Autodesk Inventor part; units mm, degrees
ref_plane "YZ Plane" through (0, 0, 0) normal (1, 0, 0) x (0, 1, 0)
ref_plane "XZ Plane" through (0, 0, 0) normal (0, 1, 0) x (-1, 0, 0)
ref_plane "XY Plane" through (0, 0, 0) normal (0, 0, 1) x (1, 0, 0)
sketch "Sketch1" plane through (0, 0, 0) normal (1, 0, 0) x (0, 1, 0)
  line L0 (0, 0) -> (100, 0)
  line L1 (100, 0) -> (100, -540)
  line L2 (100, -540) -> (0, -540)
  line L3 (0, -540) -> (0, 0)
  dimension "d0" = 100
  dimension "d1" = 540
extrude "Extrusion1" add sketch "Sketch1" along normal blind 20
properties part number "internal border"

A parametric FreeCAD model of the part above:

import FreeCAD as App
import Part
import Sketcher


def add_polygon(sketch, points):
    """Adds a closed chain of lines whose ends are joined by coincident constraints."""
    first, n = sketch.GeometryCount, len(points)
    for a, b in zip(points, points[1:] + points[:1]):
        sketch.addGeometry(Part.LineSegment(App.Vector(*a, 0), App.Vector(*b, 0)), False)
    for i in range(n):
        sketch.addConstraint(Sketcher.Constraint("Coincident", first + i, 2, first + (i + 1) % n, 1))

doc = App.newDocument("Part")
body = doc.addObject("PartDesign::Body", "Body")

# Sketch on YZ plane
sketch1 = body.newObject("Sketcher::SketchObject", "Sketch")
sketch1.AttachmentSupport = (doc.getObject("YZ_Plane"), [""])
sketch1.MapMode = "FlatFace"
add_polygon(sketch1, [(100, 0), (0, 0), (0, -540), (100, -540)])  # lines 0-3
sketch1.addConstraint([
    Sketcher.Constraint("Horizontal", 0),
    Sketcher.Constraint("Vertical", 1),
    Sketcher.Constraint("Horizontal", 2),
    Sketcher.Constraint("Vertical", 3),
    Sketcher.Constraint("Coincident", 0, 2, -1, 1),
    Sketcher.Constraint("DistanceX", 0, 2, 0, 1, 100.0),
    Sketcher.Constraint("DistanceY", 1, 2, 1, 1, 540.0),
])
pad1 = body.newObject("PartDesign::Pad", "Pad")
pad1.Profile = sketch1
pad1.Length = 20

doc.recompute()
